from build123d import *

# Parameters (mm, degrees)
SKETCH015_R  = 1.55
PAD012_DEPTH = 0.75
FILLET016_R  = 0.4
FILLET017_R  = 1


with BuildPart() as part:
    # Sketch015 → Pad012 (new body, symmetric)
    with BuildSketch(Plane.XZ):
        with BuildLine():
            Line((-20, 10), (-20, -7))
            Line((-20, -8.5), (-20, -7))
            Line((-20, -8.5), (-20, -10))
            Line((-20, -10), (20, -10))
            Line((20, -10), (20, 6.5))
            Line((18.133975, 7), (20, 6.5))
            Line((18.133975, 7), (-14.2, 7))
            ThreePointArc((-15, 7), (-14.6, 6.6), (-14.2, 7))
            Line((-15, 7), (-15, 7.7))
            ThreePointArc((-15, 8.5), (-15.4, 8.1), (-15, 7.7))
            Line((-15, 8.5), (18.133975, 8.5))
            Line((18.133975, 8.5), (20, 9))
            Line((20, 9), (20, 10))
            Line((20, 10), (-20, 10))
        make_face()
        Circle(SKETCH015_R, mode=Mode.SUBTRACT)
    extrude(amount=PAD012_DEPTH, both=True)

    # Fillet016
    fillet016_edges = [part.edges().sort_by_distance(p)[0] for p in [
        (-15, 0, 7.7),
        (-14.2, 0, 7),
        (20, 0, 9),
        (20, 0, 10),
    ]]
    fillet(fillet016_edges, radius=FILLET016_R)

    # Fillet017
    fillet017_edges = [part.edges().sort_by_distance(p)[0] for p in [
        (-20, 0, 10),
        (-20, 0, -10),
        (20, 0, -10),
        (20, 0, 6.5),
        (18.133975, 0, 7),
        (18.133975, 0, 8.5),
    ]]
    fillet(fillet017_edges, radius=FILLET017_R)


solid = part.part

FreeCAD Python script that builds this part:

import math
import FreeCAD as App
import Part
import Sketcher

V = App.Vector
Q = App.Units.Quantity


def edges_at(feature, points):
    """Names of the edges that pass closest to the given points."""
    edges = feature.Shape.Edges
    near = lambda p: min(range(len(edges)), key=lambda i: edges[i].distToShape(Part.Vertex(*p))[0])
    return sorted({f"Edge{near(p) + 1}" for p in points})

doc = App.newDocument("Part")
body = doc.addObject("PartDesign::Body", "Body")

sketch1 = body.newObject("Sketcher::SketchObject", "Sketch")
sketch1.AttachmentSupport = (doc.getObject("XZ_Plane"), [""])
sketch1.MapMode = "FlatFace"
sketch1.addGeometry(Part.LineSegment(V(-20, 10, 0), V(-20, -10, 0)), False)
sketch1.addGeometry(Part.LineSegment(V(-20, -10, 0), V(20, -10, 0)), False)
sketch1.addGeometry(Part.LineSegment(V(20, -10, 0), V(20, 6.5, 0)), False)
sketch1.addGeometry(Part.LineSegment(V(20, 6.5, 0), V(18.133975, 7, 0)), False)
sketch1.addGeometry(Part.LineSegment(V(18.133975, 7, 0), V(-14.2, 7, 0)), False)
sketch1.addGeometry(Part.ArcOfCircle(Part.Circle(V(-14.6, 7, 0), V(0, 0, 1), 0.4), math.radians(180), math.radians(360)), False)
sketch1.addGeometry(Part.LineSegment(V(-15, 7, 0), V(-15, 7.7, 0)), False)
sketch1.addGeometry(Part.ArcOfCircle(Part.Circle(V(-15, 8.1, 0), V(0, 0, 1), 0.4), math.radians(90), math.radians(270)), False)
sketch1.addGeometry(Part.LineSegment(V(-15, 8.5, 0), V(18.133975, 8.5, 0)), False)
sketch1.addGeometry(Part.LineSegment(V(18.133975, 8.5, 0), V(20, 9, 0)), False)
sketch1.addGeometry(Part.LineSegment(V(20, 9, 0), V(20, 10, 0)), False)
sketch1.addGeometry(Part.LineSegment(V(20, 10, 0), V(-20, 10, 0)), False)
sketch1.addGeometry(Part.Circle(V(0, 0, 0), V(0, 0, 1), 1.55), False)
sketch1.addConstraint(Sketcher.Constraint("Coincident", 0, 2, 1, 1))
sketch1.addConstraint(Sketcher.Constraint("Coincident", 1, 2, 2, 1))
sketch1.addConstraint(Sketcher.Constraint("Coincident", 2, 2, 3, 1))
sketch1.addConstraint(Sketcher.Constraint("Coincident", 3, 2, 4, 1))
sketch1.addConstraint(Sketcher.Constraint("Coincident", 4, 2, 5, 2))
sketch1.addConstraint(Sketcher.Constraint("Tangent", 5, 1, 6, 1))
sketch1.addConstraint(Sketcher.Constraint("Coincident", 6, 2, 7, 2))
sketch1.addConstraint(Sketcher.Constraint("Tangent", 7, 1, 8, 1))
sketch1.addConstraint(Sketcher.Constraint("Coincident", 8, 2, 9, 1))
sketch1.addConstraint(Sketcher.Constraint("Coincident", 9, 2, 10, 1))
sketch1.addConstraint(Sketcher.Constraint("Coincident", 10, 2, 11, 1))
sketch1.addConstraint(Sketcher.Constraint("Coincident", 11, 2, 0, 1))
sketch1.addConstraint(Sketcher.Constraint("Vertical", 0))
sketch1.addConstraint(Sketcher.Constraint("Horizontal", 1))
sketch1.addConstraint(Sketcher.Constraint("Vertical", 2))
sketch1.addConstraint(Sketcher.Constraint("Horizontal", 4))
sketch1.addConstraint(Sketcher.Constraint("Vertical", 6))
sketch1.addConstraint(Sketcher.Constraint("Horizontal", 8))
sketch1.addConstraint(Sketcher.Constraint("Vertical", 10))
sketch1.addConstraint(Sketcher.Constraint("Horizontal", 11))
sketch1.addConstraint(Sketcher.Constraint("Coincident", 12, 3, -1, 1))
sketch1.addConstraint(Sketcher.Constraint("Equal", 5, 7))
sketch1.addConstraint(Sketcher.Constraint("Symmetric", 0, 2, 10, 2, -1, 1))
sketch1.addConstraint(Sketcher.Constraint("Horizontal", 5, 3, 3, 2))
sketch1.addConstraint(Sketcher.Constraint("Vertical", 7, 3, 5, 1))
sketch1.addConstraint(Sketcher.Constraint("Vertical", 3, 2, 8, 2))
sketch1.addConstraint(Sketcher.Constraint("Vertical", 2, 2, 9, 2))
sketch1.addConstraint(Sketcher.Constraint("Equal", 3, 9))
sketch1.addConstraint(Sketcher.Constraint("Diameter", 12, Q("3.1 mm")))
sketch1.addConstraint(Sketcher.Constraint("Radius", 5, Q("0.4 mm")))
sketch1.addConstraint(Sketcher.Constraint("DistanceX", 1, 1, 1, 2, Q("40 mm")))
sketch1.addConstraint(Sketcher.Constraint("DistanceY", 0, 2, 0, 1, Q("20 mm")))
sketch1.addConstraint(Sketcher.Constraint("DistanceY", 10, 1, 10, 2, Q("1 mm")))
sketch1.addConstraint(Sketcher.Constraint("Angle", 3, Q("164.999997 deg")))
sketch1.addConstraint(Sketcher.Constraint("DistanceY", 2, 1, 2, 2, Q("16.5 mm")))
sketch1.addConstraint(Sketcher.Constraint("DistanceY", 6, 1, 6, 2, Q("0.7 mm")))
sketch1.addConstraint(Sketcher.Constraint("DistanceX", 7, 3, -1, 1, Q("15 mm")))
pad1 = body.newObject("PartDesign::Pad", "Pad")
pad1.Profile = sketch1
pad1.Length = 1.5
pad1.Midplane = True
doc.recompute()

fillet = body.newObject("PartDesign::Fillet", "Fillet")
fillet.Base = (pad1, edges_at(pad1, [
    (-15, 0, 7.7),
    (-14.2, 0, 7),
    (20, 0, 9),
    (20, 0, 10),
]))
fillet.Radius = 0.4
doc.recompute()

fillet2 = body.newObject("PartDesign::Fillet", "Fillet001")
fillet2.Base = (fillet, edges_at(fillet, [
    (-20, 0, 10),
    (-20, 0, -10),
    (20, 0, -10),
    (20, 0, 6.5),
    (18.134, 0, 7),
    (18.134, 0, 8.5),
]))
fillet2.Radius = 1

doc.recompute()
